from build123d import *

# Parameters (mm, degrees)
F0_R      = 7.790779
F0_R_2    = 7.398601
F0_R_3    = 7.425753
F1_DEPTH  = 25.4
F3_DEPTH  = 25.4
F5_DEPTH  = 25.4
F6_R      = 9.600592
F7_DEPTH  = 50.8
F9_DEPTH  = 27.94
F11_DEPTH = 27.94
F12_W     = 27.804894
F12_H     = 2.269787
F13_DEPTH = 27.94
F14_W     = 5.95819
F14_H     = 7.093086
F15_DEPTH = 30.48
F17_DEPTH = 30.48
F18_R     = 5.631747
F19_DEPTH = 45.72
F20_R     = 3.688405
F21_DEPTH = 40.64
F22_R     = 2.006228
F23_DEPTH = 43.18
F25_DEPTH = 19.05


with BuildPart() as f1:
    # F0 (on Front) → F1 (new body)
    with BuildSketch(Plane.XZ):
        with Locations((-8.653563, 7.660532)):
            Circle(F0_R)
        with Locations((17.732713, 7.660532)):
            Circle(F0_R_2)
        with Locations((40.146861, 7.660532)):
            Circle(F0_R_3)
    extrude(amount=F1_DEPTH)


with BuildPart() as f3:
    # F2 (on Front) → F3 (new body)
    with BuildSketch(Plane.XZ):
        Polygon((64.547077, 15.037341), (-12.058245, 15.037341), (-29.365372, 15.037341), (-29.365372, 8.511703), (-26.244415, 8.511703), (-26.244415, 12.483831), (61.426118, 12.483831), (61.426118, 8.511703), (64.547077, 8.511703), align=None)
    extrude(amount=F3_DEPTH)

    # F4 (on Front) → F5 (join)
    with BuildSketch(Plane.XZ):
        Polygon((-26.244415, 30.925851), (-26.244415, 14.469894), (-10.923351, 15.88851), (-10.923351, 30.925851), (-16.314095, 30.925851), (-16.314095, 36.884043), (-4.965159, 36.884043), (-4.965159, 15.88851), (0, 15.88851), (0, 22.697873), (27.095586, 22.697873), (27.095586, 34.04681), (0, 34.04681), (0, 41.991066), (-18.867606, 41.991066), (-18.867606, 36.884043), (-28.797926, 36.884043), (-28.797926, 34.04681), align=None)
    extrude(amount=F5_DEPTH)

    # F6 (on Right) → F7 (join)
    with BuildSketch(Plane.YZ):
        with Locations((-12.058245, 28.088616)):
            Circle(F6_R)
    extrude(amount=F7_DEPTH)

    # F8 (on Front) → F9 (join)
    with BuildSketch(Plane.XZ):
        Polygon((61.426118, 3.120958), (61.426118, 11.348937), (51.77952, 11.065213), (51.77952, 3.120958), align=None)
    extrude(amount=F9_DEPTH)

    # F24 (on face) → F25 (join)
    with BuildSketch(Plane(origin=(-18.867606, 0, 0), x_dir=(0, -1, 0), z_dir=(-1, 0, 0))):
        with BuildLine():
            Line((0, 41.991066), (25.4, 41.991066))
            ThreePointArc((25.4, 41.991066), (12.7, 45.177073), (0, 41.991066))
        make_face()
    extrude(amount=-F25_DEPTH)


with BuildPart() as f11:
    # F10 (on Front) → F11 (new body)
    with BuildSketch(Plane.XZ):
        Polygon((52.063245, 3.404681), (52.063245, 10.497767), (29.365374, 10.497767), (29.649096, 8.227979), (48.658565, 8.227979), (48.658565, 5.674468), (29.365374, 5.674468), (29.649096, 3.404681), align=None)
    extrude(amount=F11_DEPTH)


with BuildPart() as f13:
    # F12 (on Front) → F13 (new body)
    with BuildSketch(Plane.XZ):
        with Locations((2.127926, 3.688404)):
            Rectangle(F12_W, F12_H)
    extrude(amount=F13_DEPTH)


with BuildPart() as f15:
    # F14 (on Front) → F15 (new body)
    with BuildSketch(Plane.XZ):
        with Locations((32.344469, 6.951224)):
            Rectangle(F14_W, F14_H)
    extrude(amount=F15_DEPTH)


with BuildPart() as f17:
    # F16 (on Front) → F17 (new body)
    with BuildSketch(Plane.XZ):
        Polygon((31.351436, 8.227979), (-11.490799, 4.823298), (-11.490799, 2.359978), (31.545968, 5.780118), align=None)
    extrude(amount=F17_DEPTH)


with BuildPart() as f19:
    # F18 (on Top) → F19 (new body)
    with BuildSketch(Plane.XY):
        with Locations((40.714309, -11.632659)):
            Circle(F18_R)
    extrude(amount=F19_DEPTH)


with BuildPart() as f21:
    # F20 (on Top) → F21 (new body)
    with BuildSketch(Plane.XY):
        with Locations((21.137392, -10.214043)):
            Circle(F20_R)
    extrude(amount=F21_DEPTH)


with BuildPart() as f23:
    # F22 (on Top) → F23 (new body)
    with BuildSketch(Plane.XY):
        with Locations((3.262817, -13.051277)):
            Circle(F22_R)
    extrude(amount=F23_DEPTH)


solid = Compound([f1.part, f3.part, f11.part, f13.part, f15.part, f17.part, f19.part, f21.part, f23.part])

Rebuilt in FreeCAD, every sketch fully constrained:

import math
import FreeCAD as App
import Part
import Sketcher
from FreeCAD import Vector
Q = App.Units.Quantity


def add_polygon(sketch, points):
    """Adds a closed chain of lines whose ends are joined by coincident constraints."""
    first, n = sketch.GeometryCount, len(points)
    for a, b in zip(points, points[1:] + points[:1]):
        sketch.addGeometry(Part.LineSegment(App.Vector(*a, 0), App.Vector(*b, 0)), False)
    for i in range(n):
        sketch.addConstraint(Sketcher.Constraint("Coincident", first + i, 2, first + (i + 1) % n, 1))

doc = App.newDocument("Part")
body = doc.addObject("PartDesign::Body", "Body")
body.AllowCompound = True

# Sketch on XZ plane
sketch1 = doc.addObject("Sketcher::SketchObject", "Sketch")
body.addObject(sketch1)
sketch1.AttachmentSupport = (doc.XZ_Plane, [""])
sketch1.MapMode = "FlatFace"
sketch1.addGeometry(Part.Circle(Vector(-8.653563, 7.660532, 0), Vector(0, 0, 1), 7.790779), False)
sketch1.addGeometry(Part.Circle(Vector(17.732713, 7.660532, 0), Vector(0, 0, 1), 7.398601), False)
sketch1.addGeometry(Part.Circle(Vector(40.146861, 7.660532, 0), Vector(0, 0, 1), 7.425753), False)
sketch1.addConstraint(Sketcher.Constraint("Horizontal", 0, 3, 1, 3))
sketch1.addConstraint(Sketcher.Constraint("Horizontal", 1, 3, 2, 3))
sketch1.addConstraint(Sketcher.Constraint("Diameter", 0, Q("15.581558 mm")))
sketch1.addConstraint(Sketcher.Constraint("Diameter", 1, Q("14.797202 mm")))
sketch1.addConstraint(Sketcher.Constraint("Diameter", 2, Q("14.851506 mm")))
sketch1.addConstraint(Sketcher.Constraint("DistanceX", -1, 1, 2, 3, Q("40.146861 mm")))
sketch1.addConstraint(Sketcher.Constraint("DistanceX", 1, 3, 2, 3, Q("22.414148 mm")))
sketch1.addConstraint(Sketcher.Constraint("DistanceX", 0, 3, -1, 1, Q("8.653563 mm")))
sketch1.addConstraint(Sketcher.Constraint("DistanceY", -1, 1, 0, 3, Q("7.660532 mm")))
pad1 = doc.addObject("PartDesign::Pad", "Pad")
body.addObject(pad1)
pad1.Profile = sketch1
pad1.Length = Q("1 in")
body2 = doc.addObject("PartDesign::Body", "Body001")

# Sketch on XZ plane
sketch2 = doc.addObject("Sketcher::SketchObject", "Sketch001")
body2.addObject(sketch2)
sketch2.AttachmentSupport = (doc.getObject("XZ_Plane001"), [""])
sketch2.MapMode = "FlatFace"
add_polygon(sketch2, [(64.547077, 15.037341), (-29.365372, 15.037341), (-29.365372, 8.511703), (-26.244415, 8.511703), (-26.244415, 12.483831), (61.426118, 12.483831), (61.426118, 8.511703), (64.547077, 8.511703)])  # lines 0-7
sketch2.addConstraint(Sketcher.Constraint("Horizontal", 0))
sketch2.addConstraint(Sketcher.Constraint("Vertical", 1))
sketch2.addConstraint(Sketcher.Constraint("Horizontal", 2))
sketch2.addConstraint(Sketcher.Constraint("Vertical", 3))
sketch2.addConstraint(Sketcher.Constraint("Horizontal", 4))
sketch2.addConstraint(Sketcher.Constraint("Vertical", 5))
sketch2.addConstraint(Sketcher.Constraint("Horizontal", 6))
sketch2.addConstraint(Sketcher.Constraint("Vertical", 7))
sketch2.addConstraint(Sketcher.Constraint("Horizontal", 2, 2, 5, 2))
sketch2.addConstraint(Sketcher.Constraint("Equal", 2, 6))
sketch2.addConstraint(Sketcher.Constraint("DistanceX", 0, 2, 0, 1, Q("93.912449 mm")))
sketch2.addConstraint(Sketcher.Constraint("DistanceX", 6, 1, 6, 2, Q("3.120959 mm")))
sketch2.addConstraint(Sketcher.Constraint("DistanceY", 1, 2, 1, 1, Q("6.525638 mm")))
sketch2.addConstraint(Sketcher.Constraint("DistanceY", 3, 1, 3, 2, Q("3.972128 mm")))
sketch2.addConstraint(Sketcher.Constraint("DistanceY", -1, 1, 0, 2, Q("15.037341 mm")))
sketch2.addConstraint(Sketcher.Constraint("DistanceX", -1, 1, 4, 2, Q("61.426118 mm")))
pad2 = doc.addObject("PartDesign::Pad", "Pad001")
body2.addObject(pad2)
pad2.Profile = sketch2
pad2.Length = Q("1 in")

# Sketch on XZ plane
sketch3 = doc.addObject("Sketcher::SketchObject", "Sketch002")
body2.addObject(sketch3)
sketch3.AttachmentSupport = (doc.getObject("XZ_Plane001"), [""])
sketch3.MapMode = "FlatFace"
add_polygon(sketch3, [(-26.244415, 30.925851), (-26.244415, 14.469894), (-10.923351, 15.88851), (-10.923351, 30.925851), (-16.314095, 30.925851), (-16.314095, 36.884043), (-4.965159, 36.884043), (-4.965159, 15.88851), (0, 15.88851), (0, 22.697873), (27.095586, 22.697873), (27.095586, 34.04681), (0, 34.04681), (0, 41.991066), (-18.867606, 41.991066), (-18.867606, 36.884043), (-28.797926, 36.884043), (-28.797926, 34.04681)])  # lines 0-17
sketch3.addConstraint(Sketcher.Constraint("Vertical", 0))
sketch3.addConstraint(Sketcher.Constraint("Vertical", 2))
sketch3.addConstraint(Sketcher.Constraint("Horizontal", 3))
sketch3.addConstraint(Sketcher.Constraint("Vertical", 4))
sketch3.addConstraint(Sketcher.Constraint("Horizontal", 5))
sketch3.addConstraint(Sketcher.Constraint("Vertical", 6))
sketch3.addConstraint(Sketcher.Constraint("Horizontal", 7))
sketch3.addConstraint(Sketcher.Constraint("Vertical", 8))
sketch3.addConstraint(Sketcher.Constraint("Horizontal", 9))
sketch3.addConstraint(Sketcher.Constraint("Vertical", 10))
sketch3.addConstraint(Sketcher.Constraint("Horizontal", 11))
sketch3.addConstraint(Sketcher.Constraint("Vertical", 12))
sketch3.addConstraint(Sketcher.Constraint("Horizontal", 13))
sketch3.addConstraint(Sketcher.Constraint("Vertical", 14))
sketch3.addConstraint(Sketcher.Constraint("Horizontal", 15))
sketch3.addConstraint(Sketcher.Constraint("Vertical", 16))
sketch3.addConstraint(Sketcher.Constraint("PointOnObject", 7, 2, -2))
sketch3.addConstraint(Sketcher.Constraint("PointOnObject", 11, 2, -2))
sketch3.addConstraint(Sketcher.Constraint("Horizontal", 1, 2, 6, 2))
sketch3.addConstraint(Sketcher.Constraint("Horizontal", 5, 2, 14, 2))
sketch3.addConstraint(Sketcher.Constraint("Horizontal", 11, 2, 16, 2))
sketch3.addConstraint(Sketcher.Constraint("Horizontal", 3, 2, 17, 2))
sketch3.addConstraint(Sketcher.Constraint("Equal", 5, 10))
sketch3.addConstraint(Sketcher.Constraint("Distance", 1, Q("15.3866 mm")))
sketch3.addConstraint(Sketcher.Constraint("DistanceX", 7, 1, 7, 2, Q("4.965159 mm")))
sketch3.addConstraint(Sketcher.Constraint("DistanceX", 15, 2, 15, 1, Q("9.93032 mm")))
sketch3.addConstraint(Sketcher.Constraint("DistanceY", 2, 1, 2, 2, Q("15.037341 mm")))
sketch3.addConstraint(Sketcher.Constraint("DistanceY", 4, 1, 4, 2, Q("5.958192 mm")))
sketch3.addConstraint(Sketcher.Constraint("DistanceY", 7, 2, 10, 2, Q("18.1583 mm")))
sketch3.addConstraint(Sketcher.Constraint("Distance", 17, Q("4.032469 mm")))
sketch3.addConstraint(Sketcher.Constraint("DistanceX", 3, 2, 3, 1, Q("5.390744 mm")))
sketch3.addConstraint(Sketcher.Constraint("DistanceX", 5, 1, 5, 2, Q("11.348936 mm")))
sketch3.addConstraint(Sketcher.Constraint("DistanceX", 9, 1, 9, 2, Q("27.095586 mm")))
sketch3.addConstraint(Sketcher.Constraint("DistanceX", 13, 2, 13, 1, Q("18.867606 mm")))
sketch3.addConstraint(Sketcher.Constraint("DistanceY", 12, 1, 12, 2, Q("7.944256 mm")))
sketch3.addConstraint(Sketcher.Constraint("DistanceY", -1, 1, 1, 2, Q("15.88851 mm")))
pad3 = doc.addObject("PartDesign::Pad", "Pad002")
body2.addObject(pad3)
pad3.Profile = sketch3
pad3.Length = Q("1 in")

# Sketch on YZ plane
sketch4 = doc.addObject("Sketcher::SketchObject", "Sketch003")
body2.addObject(sketch4)
sketch4.AttachmentSupport = (doc.getObject("YZ_Plane001"), [""])
sketch4.MapMode = "FlatFace"
sketch4.addGeometry(Part.Circle(Vector(-12.058245, 28.088616, 0), Vector(0, 0, 1), 9.600592), False)
sketch4.addConstraint(Sketcher.Constraint("Diameter", 0, Q("19.201184 mm")))
sketch4.addConstraint(Sketcher.Constraint("DistanceX", 0, 3, -1, 1, Q("12.058245 mm")))
sketch4.addConstraint(Sketcher.Constraint("DistanceY", -1, 1, 0, 3, Q("28.088616 mm")))
pad4 = doc.addObject("PartDesign::Pad", "Pad003")
body2.addObject(pad4)
pad4.Profile = sketch4
pad4.Length = Q("2 in")

# Sketch on XZ plane
sketch5 = doc.addObject("Sketcher::SketchObject", "Sketch004")
body2.addObject(sketch5)
sketch5.AttachmentSupport = (doc.getObject("XZ_Plane001"), [""])
sketch5.MapMode = "FlatFace"
add_polygon(sketch5, [(61.426118, 3.120958), (61.426118, 11.348937), (51.77952, 11.065213), (51.77952, 3.120958)])  # lines 0-3
sketch5.addConstraint(Sketcher.Constraint("Vertical", 0))
sketch5.addConstraint(Sketcher.Constraint("Vertical", 2))
sketch5.addConstraint(Sketcher.Constraint("Horizontal", 3))
sketch5.addConstraint(Sketcher.Constraint("DistanceX", 3, 1, 3, 2, Q("9.646598 mm")))
sketch5.addConstraint(Sketcher.Constraint("DistanceY", 0, 1, 0, 2, Q("8.227979 mm")))
sketch5.addConstraint(Sketcher.Constraint("Distance", 1, Q("9.65077 mm")))
sketch5.addConstraint(Sketcher.Constraint("DistanceX", -1, 1, 0, 2, Q("61.426118 mm")))
sketch5.addConstraint(Sketcher.Constraint("DistanceY", -1, 1, 0, 2, Q("11.348937 mm")))
pad5 = doc.addObject("PartDesign::Pad", "Pad004")
body2.addObject(pad5)
pad5.Profile = sketch5
pad5.Length = Q("1.1 in")

# Sketch on YZ plane
sketch6 = doc.addObject("Sketcher::SketchObject", "Sketch005")
body2.addObject(sketch6)
sketch6.AttachmentSupport = (doc.getObject("YZ_Plane001"), [""])
sketch6.MapMode = "FlatFace"
sketch6.AttachmentOffset = App.Placement(Vector(0, 0, -18.867606), App.Rotation())
sketch6.addGeometry(Part.LineSegment(Vector(0, 41.991066, 0), Vector(-25.4, 41.991066, 0)), False)
sketch6.addGeometry(Part.ArcOfCircle(Part.Circle(Vector(-12.7, 18.271821, 0), Vector(0, 0, 1), 26.905252), math.radians(61.834059), math.radians(118.165941)), False)
sketch6.addConstraint(Sketcher.Constraint("Coincident", 0, 1, 1, 1))
sketch6.addConstraint(Sketcher.Constraint("Coincident", 1, 2, 0, 2))
sketch6.addConstraint(Sketcher.Constraint("Horizontal", 0))
sketch6.addConstraint(Sketcher.Constraint("PointOnObject", 0, 1, -2))
sketch6.addConstraint(Sketcher.Constraint("DistanceX", 0, 2, 0, 1, Q("1 in")))
sketch6.addConstraint(Sketcher.Constraint("Radius", 1, Q("26.905252 mm")))
sketch6.addConstraint(Sketcher.Constraint("DistanceY", -1, 1, 1, 3, Q("18.271821 mm")))
pad6 = doc.addObject("PartDesign::Pad", "Pad005")
body2.addObject(pad6)
pad6.Profile = sketch6
pad6.Length = Q("0.75 in")
body3 = doc.addObject("PartDesign::Body", "Body002")

# Sketch on XZ plane
sketch7 = doc.addObject("Sketcher::SketchObject", "Sketch006")
body3.addObject(sketch7)
sketch7.AttachmentSupport = (doc.getObject("XZ_Plane002"), [""])
sketch7.MapMode = "FlatFace"
add_polygon(sketch7, [(52.063245, 3.404681), (52.063245, 10.497767), (29.365374, 10.497767), (29.649096, 8.227979), (48.658565, 8.227979), (48.658565, 5.674468), (29.365374, 5.674468), (29.649096, 3.404681)])  # lines 0-7
sketch7.addConstraint(Sketcher.Constraint("Vertical", 0))
sketch7.addConstraint(Sketcher.Constraint("Horizontal", 1))
sketch7.addConstraint(Sketcher.Constraint("Horizontal", 3))
sketch7.addConstraint(Sketcher.Constraint("Vertical", 4))
sketch7.addConstraint(Sketcher.Constraint("Horizontal", 5))
sketch7.addConstraint(Sketcher.Constraint("Horizontal", 7))
sketch7.addConstraint(Sketcher.Constraint("Parallel", 2, 6))
sketch7.addConstraint(Sketcher.Constraint("Vertical", 1, 2, 5, 2))
sketch7.addConstraint(Sketcher.Constraint("Vertical", 2, 2, 6, 2))
sketch7.addConstraint(Sketcher.Constraint("DistanceX", 1, 2, 1, 1, Q("22.697871 mm")))
sketch7.addConstraint(Sketcher.Constraint("DistanceX", 3, 1, 3, 2, Q("19.009469 mm")))
sketch7.addConstraint(Sketcher.Constraint("DistanceX", 5, 2, 5, 1, Q("19.293191 mm")))
sketch7.addConstraint(Sketcher.Constraint("DistanceY", 4, 2, 4, 1, Q("2.553511 mm")))
sketch7.addConstraint(Sketcher.Constraint("DistanceY", 4, 2, 0, 2, Q("4.823299 mm")))
sketch7.addConstraint(Sketcher.Constraint("DistanceY", -1, 1, 2, 2, Q("8.227979 mm")))
sketch7.addConstraint(Sketcher.Constraint("DistanceX", -1, 1, 0, 2, Q("52.063245 mm")))
pad7 = doc.addObject("PartDesign::Pad", "Pad006")
body3.addObject(pad7)
pad7.Profile = sketch7
pad7.Length = Q("1.1 in")
body4 = doc.addObject("PartDesign::Body", "Body003")

# Sketch on XZ plane
sketch8 = doc.addObject("Sketcher::SketchObject", "Sketch007")
body4.addObject(sketch8)
sketch8.AttachmentSupport = (doc.getObject("XZ_Plane003"), [""])
sketch8.MapMode = "FlatFace"
add_polygon(sketch8, [(-11.774521, 4.823297), (-11.774521, 2.55351), (16.030373, 2.55351), (16.030373, 4.823297)])  # lines 0-3
sketch8.addConstraint(Sketcher.Constraint("Vertical", 0))
sketch8.addConstraint(Sketcher.Constraint("Horizontal", 1))
sketch8.addConstraint(Sketcher.Constraint("Vertical", 2))
sketch8.addConstraint(Sketcher.Constraint("Horizontal", 3))
sketch8.addConstraint(Sketcher.Constraint("DistanceX", 1, 1, 1, 2, Q("27.804894 mm")))
sketch8.addConstraint(Sketcher.Constraint("DistanceY", 0, 2, 0, 1, Q("2.269787 mm")))
sketch8.addConstraint(Sketcher.Constraint("DistanceX", 0, 2, -1, 1, Q("11.774521 mm")))
sketch8.addConstraint(Sketcher.Constraint("DistanceY", -1, 1, 0, 2, Q("2.55351 mm")))
pad8 = doc.addObject("PartDesign::Pad", "Pad007")
body4.addObject(pad8)
pad8.Profile = sketch8
pad8.Length = Q("1.1 in")
body5 = doc.addObject("PartDesign::Body", "Body004")

# Sketch on XZ plane
sketch9 = doc.addObject("Sketcher::SketchObject", "Sketch008")
body5.addObject(sketch9)
sketch9.AttachmentSupport = (doc.getObject("XZ_Plane004"), [""])
sketch9.MapMode = "FlatFace"
add_polygon(sketch9, [(29.365374, 10.497767), (29.365374, 3.404681), (35.323564, 3.404681), (35.323564, 10.497767)])  # lines 0-3
sketch9.addConstraint(Sketcher.Constraint("Vertical", 0))
sketch9.addConstraint(Sketcher.Constraint("Horizontal", 1))
sketch9.addConstraint(Sketcher.Constraint("Vertical", 2))
sketch9.addConstraint(Sketcher.Constraint("Horizontal", 3))
sketch9.addConstraint(Sketcher.Constraint("DistanceX", 1, 1, 1, 2, Q("5.95819 mm")))
sketch9.addConstraint(Sketcher.Constraint("DistanceY", 0, 2, 0, 1, Q("7.093086 mm")))
sketch9.addConstraint(Sketcher.Constraint("DistanceY", -1, 1, 0, 2, Q("3.404681 mm")))
sketch9.addConstraint(Sketcher.Constraint("DistanceX", -1, 1, 0, 2, Q("29.365374 mm")))
pad9 = doc.addObject("PartDesign::Pad", "Pad008")
body5.addObject(pad9)
pad9.Profile = sketch9
pad9.Length = Q("1.2 in")
body6 = doc.addObject("PartDesign::Body", "Body005")

# Sketch on XZ plane
sketch10 = doc.addObject("Sketcher::SketchObject", "Sketch009")
body6.addObject(sketch10)
sketch10.AttachmentSupport = (doc.getObject("XZ_Plane005"), [""])
sketch10.MapMode = "FlatFace"
add_polygon(sketch10, [(31.351436, 8.227979), (-11.490799, 4.823298), (-11.490799, 2.359978), (31.545968, 5.780118)])  # lines 0-3
sketch10.addConstraint(Sketcher.Constraint("Vertical", 1))
sketch10.addConstraint(Sketcher.Constraint("Parallel", 0, 2))
sketch10.addConstraint(Sketcher.Constraint("Perpendicular", 2, 3))
sketch10.addConstraint(Sketcher.Constraint("DistanceY", 1, 2, 1, 1, Q("2.46332 mm")))
sketch10.addConstraint(Sketcher.Constraint("DistanceX", 0, 2, -1, 1, Q("11.490799 mm")))
sketch10.addConstraint(Sketcher.Constraint("DistanceY", -1, 1, 0, 2, Q("4.823298 mm")))
sketch10.addConstraint(Sketcher.Constraint("DistanceY", 1, 2, 3, 2, Q("5.868001 mm")))
sketch10.addConstraint(Sketcher.Constraint("Distance", 0, Q("42.977307 mm")))
pad10 = doc.addObject("PartDesign::Pad", "Pad009")
body6.addObject(pad10)
pad10.Profile = sketch10
pad10.Length = Q("1.2 in")
body7 = doc.addObject("PartDesign::Body", "Body006")

# Sketch on XY plane
sketch11 = doc.addObject("Sketcher::SketchObject", "Sketch010")
body7.addObject(sketch11)
sketch11.AttachmentSupport = (doc.getObject("XY_Plane006"), [""])
sketch11.MapMode = "FlatFace"
sketch11.addGeometry(Part.Circle(Vector(40.714309, -11.632659, 0), Vector(0, 0, 1), 5.631747), False)
sketch11.addConstraint(Sketcher.Constraint("Diameter", 0, Q("11.263494 mm")))
sketch11.addConstraint(Sketcher.Constraint("DistanceX", -1, 1, 0, 3, Q("40.714309 mm")))
sketch11.addConstraint(Sketcher.Constraint("DistanceY", 0, 3, -1, 1, Q("11.632659 mm")))
pad11 = doc.addObject("PartDesign::Pad", "Pad010")
body7.addObject(pad11)
pad11.Profile = sketch11
pad11.Length = Q("1.8 in")
body8 = doc.addObject("PartDesign::Body", "Body007")

# Sketch on XY plane
sketch12 = doc.addObject("Sketcher::SketchObject", "Sketch011")
body8.addObject(sketch12)
sketch12.AttachmentSupport = (doc.getObject("XY_Plane007"), [""])
sketch12.MapMode = "FlatFace"
sketch12.addGeometry(Part.Circle(Vector(21.137392, -10.214043, 0), Vector(0, 0, 1), 3.688405), False)
sketch12.addConstraint(Sketcher.Constraint("Diameter", 0, Q("7.37681 mm")))
sketch12.addConstraint(Sketcher.Constraint("DistanceX", -1, 1, 0, 3, Q("21.137392 mm")))
sketch12.addConstraint(Sketcher.Constraint("DistanceY", 0, 3, -1, 1, Q("10.214043 mm")))
pad12 = doc.addObject("PartDesign::Pad", "Pad011")
body8.addObject(pad12)
pad12.Profile = sketch12
pad12.Length = Q("1.6 in")
body9 = doc.addObject("PartDesign::Body", "Body008")

# Sketch on XY plane
sketch13 = doc.addObject("Sketcher::SketchObject", "Sketch012")
body9.addObject(sketch13)
sketch13.AttachmentSupport = (doc.getObject("XY_Plane008"), [""])
sketch13.MapMode = "FlatFace"
sketch13.addGeometry(Part.Circle(Vector(3.262817, -13.051277, 0), Vector(0, 0, 1), 2.006228), False)
sketch13.addConstraint(Sketcher.Constraint("Diameter", 0, Q("4.012456 mm")))
sketch13.addConstraint(Sketcher.Constraint("DistanceX", -1, 1, 0, 3, Q("3.262817 mm")))
sketch13.addConstraint(Sketcher.Constraint("DistanceY", 0, 3, -1, 1, Q("13.051277 mm")))
pad13 = doc.addObject("PartDesign::Pad", "Pad012")
body9.addObject(pad13)
pad13.Profile = sketch13
pad13.Length = Q("1.7 in")

doc.recompute()
